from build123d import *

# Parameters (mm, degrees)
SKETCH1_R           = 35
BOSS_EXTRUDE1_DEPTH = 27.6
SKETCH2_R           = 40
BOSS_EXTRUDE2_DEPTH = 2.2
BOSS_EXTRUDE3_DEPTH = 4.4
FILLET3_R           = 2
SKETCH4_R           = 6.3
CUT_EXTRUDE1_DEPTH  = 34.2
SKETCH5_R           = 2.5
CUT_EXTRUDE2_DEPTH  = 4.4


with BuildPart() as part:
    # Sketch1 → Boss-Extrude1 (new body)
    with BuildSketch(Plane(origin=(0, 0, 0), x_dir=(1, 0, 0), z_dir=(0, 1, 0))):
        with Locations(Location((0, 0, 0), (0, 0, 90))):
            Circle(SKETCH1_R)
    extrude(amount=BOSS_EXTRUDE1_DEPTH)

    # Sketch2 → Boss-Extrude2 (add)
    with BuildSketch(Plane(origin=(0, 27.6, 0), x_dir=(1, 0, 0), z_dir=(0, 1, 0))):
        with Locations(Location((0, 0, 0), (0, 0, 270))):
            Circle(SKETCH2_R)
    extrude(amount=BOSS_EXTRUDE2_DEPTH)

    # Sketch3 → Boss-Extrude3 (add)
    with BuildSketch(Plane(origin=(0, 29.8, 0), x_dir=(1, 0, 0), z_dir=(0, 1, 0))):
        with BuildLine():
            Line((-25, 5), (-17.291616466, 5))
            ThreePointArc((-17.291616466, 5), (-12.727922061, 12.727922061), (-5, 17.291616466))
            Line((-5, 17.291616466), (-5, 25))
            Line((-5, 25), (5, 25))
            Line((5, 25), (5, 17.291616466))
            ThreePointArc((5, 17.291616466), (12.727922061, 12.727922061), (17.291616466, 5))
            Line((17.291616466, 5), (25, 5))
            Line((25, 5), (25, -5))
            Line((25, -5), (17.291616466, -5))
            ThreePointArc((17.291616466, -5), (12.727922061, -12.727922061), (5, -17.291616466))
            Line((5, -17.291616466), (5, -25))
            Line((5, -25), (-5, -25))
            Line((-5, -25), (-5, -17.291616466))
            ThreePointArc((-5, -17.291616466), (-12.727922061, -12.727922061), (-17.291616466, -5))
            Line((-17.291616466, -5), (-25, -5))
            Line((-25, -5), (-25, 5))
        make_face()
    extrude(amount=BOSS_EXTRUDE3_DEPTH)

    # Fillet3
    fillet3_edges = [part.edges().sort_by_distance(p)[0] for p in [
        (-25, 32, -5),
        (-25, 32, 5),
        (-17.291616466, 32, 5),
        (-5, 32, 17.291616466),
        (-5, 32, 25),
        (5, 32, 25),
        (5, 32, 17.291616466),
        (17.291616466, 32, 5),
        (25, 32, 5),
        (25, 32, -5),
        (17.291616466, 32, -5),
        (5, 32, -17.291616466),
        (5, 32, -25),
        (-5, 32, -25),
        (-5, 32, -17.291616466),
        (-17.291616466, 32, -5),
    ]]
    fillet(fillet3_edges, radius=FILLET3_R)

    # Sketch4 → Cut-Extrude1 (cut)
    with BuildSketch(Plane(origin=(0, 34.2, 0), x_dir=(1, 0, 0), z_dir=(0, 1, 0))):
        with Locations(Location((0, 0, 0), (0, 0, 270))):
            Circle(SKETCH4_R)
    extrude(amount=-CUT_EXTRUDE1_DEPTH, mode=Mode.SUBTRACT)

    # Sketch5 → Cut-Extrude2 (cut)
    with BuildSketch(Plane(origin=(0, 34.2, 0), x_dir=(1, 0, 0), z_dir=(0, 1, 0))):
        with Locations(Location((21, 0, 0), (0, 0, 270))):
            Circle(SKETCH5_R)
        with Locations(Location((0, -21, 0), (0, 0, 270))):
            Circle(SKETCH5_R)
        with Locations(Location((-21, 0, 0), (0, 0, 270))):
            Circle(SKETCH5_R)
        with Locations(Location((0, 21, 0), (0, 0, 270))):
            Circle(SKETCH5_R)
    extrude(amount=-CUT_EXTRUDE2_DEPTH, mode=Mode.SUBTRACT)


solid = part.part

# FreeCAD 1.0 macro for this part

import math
import FreeCAD as App
import Part
import Sketcher
from FreeCAD import Vector


def edges_at(feature, points):
    """Names of the edges that pass closest to the given points."""
    edges = feature.Shape.Edges
    near = lambda p: min(range(len(edges)), key=lambda i: edges[i].distToShape(Part.Vertex(*p))[0])
    return sorted({f"Edge{near(p) + 1}" for p in points})

doc = App.newDocument("Part")
body = doc.addObject("PartDesign::Body", "Body")

# Sketch on XZ plane
sketch1 = body.newObject("Sketcher::SketchObject", "Sketch")
sketch1.AttachmentSupport = (doc.getObject("XZ_Plane"), [""])
sketch1.MapMode = "FlatFace"
sketch1.addGeometry(Part.Circle(Vector(0, 0, 0), Vector(0, 0, 1), 35), False)
sketch1.addConstraint(Sketcher.Constraint("Coincident", 0, 3, -1, 1))
sketch1.addConstraint(Sketcher.Constraint("Diameter", 0, 70.0))
pad1 = body.newObject("PartDesign::Pad", "Pad")
pad1.Profile = sketch1
pad1.Length = 27.6
pad1.Reversed = True

# Sketch on XZ plane
sketch2 = body.newObject("Sketcher::SketchObject", "Sketch001")
sketch2.AttachmentSupport = (doc.getObject("XZ_Plane"), [""])
sketch2.MapMode = "FlatFace"
sketch2.AttachmentOffset = App.Placement(Vector(0, 0, -27.6), App.Rotation())
sketch2.addGeometry(Part.Circle(Vector(0, 0, 0), Vector(0, 0, 1), 40), False)
sketch2.addConstraint(Sketcher.Constraint("Coincident", 0, 3, -1, 1))
sketch2.addConstraint(Sketcher.Constraint("Diameter", 0, 80.0))
pad2 = body.newObject("PartDesign::Pad", "Pad001")
pad2.Profile = sketch2
pad2.Length = 2.2
pad2.Reversed = True

# Sketch on XZ plane
sketch3 = body.newObject("Sketcher::SketchObject", "Sketch002")
sketch3.AttachmentSupport = (doc.getObject("XZ_Plane"), [""])
sketch3.MapMode = "FlatFace"
sketch3.AttachmentOffset = App.Placement(Vector(0, 0, -29.8), App.Rotation())
sketch3.addGeometry(Part.LineSegment(Vector(-17, -5, 0), Vector(-25, -5, 0)), False)
sketch3.addGeometry(Part.LineSegment(Vector(-25, -5, 0), Vector(-25, 5, 0)), False)
sketch3.addGeometry(Part.LineSegment(Vector(-25, 5, 0), Vector(-17, 5, 0)), False)
sketch3.addGeometry(Part.ArcOfCircle(Part.Circle(Vector(0, 0, 0), Vector(0, 0, 1), 18), math.radians(106), math.radians(164)), False)
sketch3.addGeometry(Part.LineSegment(Vector(-5, 17, 0), Vector(-5, 25, 0)), False)
sketch3.addGeometry(Part.LineSegment(Vector(-5, 25, 0), Vector(5, 25, 0)), False)
sketch3.addGeometry(Part.LineSegment(Vector(5, 25, 0), Vector(5, 17, 0)), False)
sketch3.addGeometry(Part.ArcOfCircle(Part.Circle(Vector(0, 0, 0), Vector(0, 0, 1), 18), math.radians(16), math.radians(74)), False)
sketch3.addGeometry(Part.LineSegment(Vector(17, 5, 0), Vector(25, 5, 0)), False)
sketch3.addGeometry(Part.LineSegment(Vector(25, 5, 0), Vector(25, -5, 0)), False)
sketch3.addGeometry(Part.LineSegment(Vector(25, -5, 0), Vector(17, -5, 0)), False)
sketch3.addGeometry(Part.ArcOfCircle(Part.Circle(Vector(0, 0, 0), Vector(0, 0, 1), 18), math.radians(-74), math.radians(-16)), False)
sketch3.addGeometry(Part.LineSegment(Vector(5, -17, 0), Vector(5, -25, 0)), False)
sketch3.addGeometry(Part.LineSegment(Vector(5, -25, 0), Vector(-5, -25, 0)), False)
sketch3.addGeometry(Part.LineSegment(Vector(-5, -25, 0), Vector(-5, -17, 0)), False)
sketch3.addGeometry(Part.ArcOfCircle(Part.Circle(Vector(0, 0, 0), Vector(0, 0, 1), 18), math.radians(-164), math.radians(-106)), False)
sketch3.addConstraint(Sketcher.Constraint("Coincident", 0, 2, 1, 1))
sketch3.addConstraint(Sketcher.Constraint("Coincident", 1, 2, 2, 1))
sketch3.addConstraint(Sketcher.Constraint("Coincident", 2, 2, 3, 2))
sketch3.addConstraint(Sketcher.Constraint("Coincident", 3, 1, 4, 1))
sketch3.addConstraint(Sketcher.Constraint("Coincident", 4, 2, 5, 1))
sketch3.addConstraint(Sketcher.Constraint("Coincident", 5, 2, 6, 1))
sketch3.addConstraint(Sketcher.Constraint("Coincident", 6, 2, 7, 2))
sketch3.addConstraint(Sketcher.Constraint("Coincident", 7, 1, 8, 1))
sketch3.addConstraint(Sketcher.Constraint("Coincident", 8, 2, 9, 1))
sketch3.addConstraint(Sketcher.Constraint("Coincident", 9, 2, 10, 1))
sketch3.addConstraint(Sketcher.Constraint("Coincident", 10, 2, 11, 2))
sketch3.addConstraint(Sketcher.Constraint("Coincident", 11, 1, 12, 1))
sketch3.addConstraint(Sketcher.Constraint("Coincident", 12, 2, 13, 1))
sketch3.addConstraint(Sketcher.Constraint("Coincident", 13, 2, 14, 1))
sketch3.addConstraint(Sketcher.Constraint("Coincident", 14, 2, 15, 2))
sketch3.addConstraint(Sketcher.Constraint("Coincident", 15, 1, 0, 1))
sketch3.addConstraint(Sketcher.Constraint("Horizontal", 0))
sketch3.addConstraint(Sketcher.Constraint("Vertical", 1))
sketch3.addConstraint(Sketcher.Constraint("Horizontal", 2))
sketch3.addConstraint(Sketcher.Constraint("Vertical", 4))
sketch3.addConstraint(Sketcher.Constraint("Horizontal", 5))
sketch3.addConstraint(Sketcher.Constraint("Vertical", 6))
sketch3.addConstraint(Sketcher.Constraint("Horizontal", 8))
sketch3.addConstraint(Sketcher.Constraint("Vertical", 9))
sketch3.addConstraint(Sketcher.Constraint("Horizontal", 10))
sketch3.addConstraint(Sketcher.Constraint("Vertical", 12))
sketch3.addConstraint(Sketcher.Constraint("Horizontal", 13))
sketch3.addConstraint(Sketcher.Constraint("Vertical", 14))
sketch3.addConstraint(Sketcher.Constraint("Coincident", 3, 3, -1, 1))
sketch3.addConstraint(Sketcher.Constraint("Coincident", 7, 3, -1, 1))
sketch3.addConstraint(Sketcher.Constraint("Coincident", 11, 3, -1, 1))
sketch3.addConstraint(Sketcher.Constraint("Coincident", 15, 3, -1, 1))
sketch3.addConstraint(Sketcher.Constraint("Equal", 3, 7))
sketch3.addConstraint(Sketcher.Constraint("Equal", 7, 11))
sketch3.addConstraint(Sketcher.Constraint("Equal", 11, 15))
sketch3.addConstraint(Sketcher.Constraint("Symmetric", 0, 2, 8, 2, -1, 1))
sketch3.addConstraint(Sketcher.Constraint("Symmetric", 4, 2, 12, 2, -1, 1))
sketch3.addConstraint(Sketcher.Constraint("Horizontal", 3, 1, 6, 2))
sketch3.addConstraint(Sketcher.Constraint("Horizontal", 2, 2, 7, 1))
sketch3.addConstraint(Sketcher.Constraint("Horizontal", 0, 2, 9, 2))
sketch3.addConstraint(Sketcher.Constraint("Horizontal", 11, 1, 14, 2))
sketch3.addConstraint(Sketcher.Constraint("Equal", 13, 1))
sketch3.addConstraint(Sketcher.Constraint("Equal", 10, 4))
sketch3.addConstraint(Sketcher.Constraint("Radius", 3, 18.0))
sketch3.addConstraint(Sketcher.Constraint("DistanceX", 5, 1, 5, 2, 10.0))
sketch3.addConstraint(Sketcher.Constraint("DistanceX", 0, 2, -1, 1, 25.0))
pad3 = body.newObject("PartDesign::Pad", "Pad002")
pad3.Profile = sketch3
pad3.Length = 4.4
pad3.Reversed = True
doc.recompute()

fillet = body.newObject("PartDesign::Fillet", "Fillet")
fillet.Base = (pad3, edges_at(pad3, [
    (-25, 32, -5),
    (-25, 32, 5),
    (-17.292, 32, 5),
    (-5, 32, 17.292),
    (-5, 32, 25),
    (5, 32, 25),
    (5, 32, 17.292),
    (17.292, 32, 5),
    (25, 32, 5),
    (25, 32, -5),
    (17.292, 32, -5),
    (5, 32, -17.292),
    (5, 32, -25),
    (-5, 32, -25),
    (-5, 32, -17.292),
    (-17.292, 32, -5),
]))
fillet.Radius = 2

# Sketch on XZ plane
sketch4 = body.newObject("Sketcher::SketchObject", "Sketch003")
sketch4.AttachmentSupport = (doc.getObject("XZ_Plane"), [""])
sketch4.MapMode = "FlatFace"
sketch4.AttachmentOffset = App.Placement(Vector(0, 0, -34.2), App.Rotation())
sketch4.addGeometry(Part.Circle(Vector(0, 0, 0), Vector(0, 0, 1), 6), False)
sketch4.addConstraint(Sketcher.Constraint("Coincident", 0, 3, -1, 1))
sketch4.addConstraint(Sketcher.Constraint("Diameter", 0, 12.6))
pocket1 = body.newObject("PartDesign::Pocket", "Pocket")
pocket1.Profile = sketch4
pocket1.Length = 34.2
pocket1.Reversed = True

# Sketch on XZ plane
sketch5 = body.newObject("Sketcher::SketchObject", "Sketch004")
sketch5.AttachmentSupport = (doc.getObject("XZ_Plane"), [""])
sketch5.MapMode = "FlatFace"
sketch5.AttachmentOffset = App.Placement(Vector(0, 0, -34.2), App.Rotation())
sketch5.addGeometry(Part.Circle(Vector(21, 0, 0), Vector(0, 0, 1), 2.5), False)
sketch5.addGeometry(Part.Circle(Vector(0, 21, 0), Vector(0, 0, 1), 2.5), False)
sketch5.addGeometry(Part.Circle(Vector(-21, 0, 0), Vector(0, 0, 1), 2.5), False)
sketch5.addGeometry(Part.Circle(Vector(0, -21, 0), Vector(0, 0, 1), 2.5), False)
sketch5.addConstraint(Sketcher.Constraint("Equal", 0, 1))
sketch5.addConstraint(Sketcher.Constraint("Equal", 1, 2))
sketch5.addConstraint(Sketcher.Constraint("Equal", 2, 3))
sketch5.addConstraint(Sketcher.Constraint("Symmetric", 0, 3, 2, 3, -1, 1))
sketch5.addConstraint(Sketcher.Constraint("Symmetric", 1, 3, 3, 3, -1, 1))
sketch5.addConstraint(Sketcher.Constraint("PointOnObject", 0, 3, -1))
sketch5.addConstraint(Sketcher.Constraint("PointOnObject", 1, 3, -2))
sketch5.addConstraint(Sketcher.Constraint("Diameter", 0, 5.0))
sketch5.addConstraint(Sketcher.Constraint("DistanceX", -1, 1, 0, 3, 21.0))
sketch5.addConstraint(Sketcher.Constraint("DistanceY", -1, 1, 1, 3, 21.0))
pocket2 = body.newObject("PartDesign::Pocket", "Pocket001")
pocket2.Profile = sketch5
pocket2.Length = 4.4
pocket2.Reversed = True

doc.recompute()
